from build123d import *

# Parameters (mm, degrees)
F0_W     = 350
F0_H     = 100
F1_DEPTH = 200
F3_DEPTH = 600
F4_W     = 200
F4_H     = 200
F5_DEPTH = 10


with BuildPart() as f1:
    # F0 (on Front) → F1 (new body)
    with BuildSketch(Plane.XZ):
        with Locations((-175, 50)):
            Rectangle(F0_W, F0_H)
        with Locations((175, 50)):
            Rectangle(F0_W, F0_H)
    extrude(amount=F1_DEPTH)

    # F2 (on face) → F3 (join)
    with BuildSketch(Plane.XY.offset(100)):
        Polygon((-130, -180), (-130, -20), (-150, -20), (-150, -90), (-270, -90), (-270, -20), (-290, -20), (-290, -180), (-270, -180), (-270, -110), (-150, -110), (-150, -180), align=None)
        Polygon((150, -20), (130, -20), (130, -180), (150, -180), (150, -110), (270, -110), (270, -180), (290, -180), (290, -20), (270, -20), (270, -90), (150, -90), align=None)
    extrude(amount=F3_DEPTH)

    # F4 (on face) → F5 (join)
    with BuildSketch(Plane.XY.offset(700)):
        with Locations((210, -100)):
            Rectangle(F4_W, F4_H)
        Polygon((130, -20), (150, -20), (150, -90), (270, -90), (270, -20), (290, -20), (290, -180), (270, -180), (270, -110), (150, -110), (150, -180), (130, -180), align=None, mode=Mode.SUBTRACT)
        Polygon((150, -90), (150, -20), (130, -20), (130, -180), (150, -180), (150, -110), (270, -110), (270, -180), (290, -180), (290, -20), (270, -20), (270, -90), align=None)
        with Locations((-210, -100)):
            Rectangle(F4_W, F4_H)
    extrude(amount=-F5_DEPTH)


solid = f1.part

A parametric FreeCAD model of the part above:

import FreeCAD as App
import Part
import Sketcher
from FreeCAD import Vector
Q = App.Units.Quantity


def add_polygon(sketch, points):
    """Adds a closed chain of lines whose ends are joined by coincident constraints."""
    first, n = sketch.GeometryCount, len(points)
    for a, b in zip(points, points[1:] + points[:1]):
        sketch.addGeometry(Part.LineSegment(App.Vector(*a, 0), App.Vector(*b, 0)), False)
    for i in range(n):
        sketch.addConstraint(Sketcher.Constraint("Coincident", first + i, 2, first + (i + 1) % n, 1))

doc = App.newDocument("Part")
params = doc.addObject("Spreadsheet::Sheet", "Params")
for row, (alias, value) in enumerate([
    ("sketch1_width", "700 mm"),
    ("sketch1_height", "100 mm"),
    ("pad1_length", "200 mm"),
    ("sketch2_width", "20 mm"),
    ("sketch2_width2", "120 mm"),
    ("sketch2_height", "160 mm"),
    ("sketch2_height2", "70 mm"),
    ("pad2_length", "600 mm"),
    ("sketch3_width", "200 mm"),
    ("pad3_length", "10 mm"),
], start=1):
    params.set(f"A{row}", alias)
    params.set(f"B{row}", "=" + value)
    params.setAlias(f"B{row}", alias)

body = doc.addObject("PartDesign::Body", "Body")

# Sketch on XZ plane
sketch1 = body.newObject("Sketcher::SketchObject", "Sketch")
sketch1.AttachmentSupport = (doc.getObject("XZ_Plane"), [""])
sketch1.MapMode = "FlatFace"
add_polygon(sketch1, [(-350, 100), (-350, 0), (350, 0), (350, 100)])  # lines 0-3
sketch1.addConstraint([
    Sketcher.Constraint("Vertical", 0),
    Sketcher.Constraint("Horizontal", 1),
    Sketcher.Constraint("Vertical", 2),
    Sketcher.Constraint("Horizontal", 3),
    Sketcher.Constraint("Symmetric", 0, 2, 1, 2, -1, 1),
    Sketcher.Constraint("DistanceX", 1, 1, 1, 2, Q("700 mm")),
    Sketcher.Constraint("DistanceY", 0, 2, 0, 1, Q("100 mm")),
])
sketch1.setExpression("Constraints[9]", "Params.sketch1_width")
sketch1.setExpression("Constraints[10]", "Params.sketch1_height")
pad1 = body.newObject("PartDesign::Pad", "Pad")
pad1.Profile = sketch1
pad1.setExpression("Length", "Params.pad1_length")

# Sketch on XY plane
sketch2 = body.newObject("Sketcher::SketchObject", "Sketch001")
sketch2.AttachmentSupport = (doc.getObject("XY_Plane"), [""])
sketch2.MapMode = "FlatFace"
sketch2.AttachmentOffset = App.Placement(Vector(0, 0, 100), App.Rotation())
add_polygon(sketch2, [(-130, -180), (-130, -20), (-150, -20), (-150, -90), (-270, -90), (-270, -20), (-290, -20), (-290, -180), (-270, -180), (-270, -110), (-150, -110), (-150, -180)])  # lines 0-11
add_polygon(sketch2, [(150, -20), (130, -20), (130, -180), (150, -180), (150, -110), (270, -110), (270, -180), (290, -180), (290, -20), (270, -20), (270, -90), (150, -90)])  # lines 12-23
sketch2.addConstraint([
    Sketcher.Constraint("Vertical", 0),
    Sketcher.Constraint("Horizontal", 1),
    Sketcher.Constraint("Vertical", 2),
    Sketcher.Constraint("Horizontal", 3),
    Sketcher.Constraint("Vertical", 4),
    Sketcher.Constraint("Horizontal", 5),
    Sketcher.Constraint("Vertical", 6),
    Sketcher.Constraint("Horizontal", 7),
    Sketcher.Constraint("Vertical", 8),
    Sketcher.Constraint("Horizontal", 9),
    Sketcher.Constraint("Vertical", 10),
    Sketcher.Constraint("Horizontal", 11),
    Sketcher.Constraint("Horizontal", 12),
    Sketcher.Constraint("Vertical", 13),
    Sketcher.Constraint("Horizontal", 14),
    Sketcher.Constraint("Vertical", 15),
    Sketcher.Constraint("Horizontal", 16),
    Sketcher.Constraint("Vertical", 17),
    Sketcher.Constraint("Horizontal", 18),
    Sketcher.Constraint("Vertical", 19),
    Sketcher.Constraint("Horizontal", 20),
    Sketcher.Constraint("Vertical", 21),
    Sketcher.Constraint("Horizontal", 22),
    Sketcher.Constraint("Vertical", 23),
    Sketcher.Constraint("Symmetric", 0, 2, 12, 2, -2),
    Sketcher.Constraint("Symmetric", 10, 2, 14, 2, -2),
    Sketcher.Constraint("Symmetric", 8, 2, 16, 2, -2),
    Sketcher.Constraint("Symmetric", 6, 2, 18, 2, -2),
    Sketcher.Constraint("Symmetric", 4, 2, 20, 2, -2),
    Sketcher.Constraint("Symmetric", 2, 2, 22, 2, -2),
    Sketcher.Constraint("Horizontal", 1, 2, 4, 2),
    Sketcher.Constraint("Horizontal", 7, 2, 10, 2),
    Sketcher.Constraint("Vertical", 4, 2, 7, 2),
    Sketcher.Constraint("Vertical", 2, 2, 9, 2),
    Sketcher.Constraint("Equal", 1, 5),
    Sketcher.Constraint("Equal", 4, 8),
    Sketcher.Constraint("DistanceX", 1, 2, 1, 1, Q("20 mm")),
    Sketcher.Constraint("DistanceX", 3, 2, 3, 1, Q("120 mm")),
    Sketcher.Constraint("DistanceY", 0, 1, 0, 2, Q("160 mm")),
    Sketcher.Constraint("DistanceY", 2, 2, 2, 1, Q("70 mm")),
    Sketcher.Constraint("DistanceX", 0, 2, -1, 1, Q("130 mm")),
    Sketcher.Constraint("DistanceY", 0, 2, -1, 1, Q("20 mm")),
])
sketch2.setExpression("Constraints[60]", "Params.sketch2_width")
sketch2.setExpression("Constraints[61]", "Params.sketch2_width2")
sketch2.setExpression("Constraints[62]", "Params.sketch2_height")
sketch2.setExpression("Constraints[63]", "Params.sketch2_height2")
pad2 = body.newObject("PartDesign::Pad", "Pad001")
pad2.Profile = sketch2
pad2.setExpression("Length", "Params.pad2_length")

# Sketch on XY plane
sketch3 = body.newObject("Sketcher::SketchObject", "Sketch002")
sketch3.AttachmentSupport = (doc.getObject("XY_Plane"), [""])
sketch3.MapMode = "FlatFace"
sketch3.AttachmentOffset = App.Placement(Vector(0, 0, 700), App.Rotation())
add_polygon(sketch3, [(110, 0), (110, -200), (310, -200), (310, 0)])  # lines 0-3
add_polygon(sketch3, [(-310, 0), (-310, -200), (-110, -200), (-110, 0)])  # lines 4-7
sketch3.addConstraint([
    Sketcher.Constraint("Vertical", 0),
    Sketcher.Constraint("Horizontal", 1),
    Sketcher.Constraint("Vertical", 2),
    Sketcher.Constraint("Horizontal", 3),
    Sketcher.Constraint("Vertical", 4),
    Sketcher.Constraint("Horizontal", 5),
    Sketcher.Constraint("Vertical", 6),
    Sketcher.Constraint("Horizontal", 7),
    Sketcher.Constraint("Symmetric", 3, 2, 6, 2, -1, 1),
    Sketcher.Constraint("Symmetric", 1, 2, 4, 2, -2),
    Sketcher.Constraint("PointOnObject", 2, 2, -1),
    Sketcher.Constraint("Equal", 7, 0),
    Sketcher.Constraint("DistanceX", 1, 1, 1, 2, Q("200 mm")),
    Sketcher.Constraint("DistanceX", -1, 1, 0, 2, Q("110 mm")),
])
sketch3.setExpression("Constraints[20]", "Params.sketch3_width")
pad3 = body.newObject("PartDesign::Pad", "Pad002")
pad3.Profile = sketch3
pad3.setExpression("Length", "Params.pad3_length")
pad3.Reversed = True

doc.recompute()
